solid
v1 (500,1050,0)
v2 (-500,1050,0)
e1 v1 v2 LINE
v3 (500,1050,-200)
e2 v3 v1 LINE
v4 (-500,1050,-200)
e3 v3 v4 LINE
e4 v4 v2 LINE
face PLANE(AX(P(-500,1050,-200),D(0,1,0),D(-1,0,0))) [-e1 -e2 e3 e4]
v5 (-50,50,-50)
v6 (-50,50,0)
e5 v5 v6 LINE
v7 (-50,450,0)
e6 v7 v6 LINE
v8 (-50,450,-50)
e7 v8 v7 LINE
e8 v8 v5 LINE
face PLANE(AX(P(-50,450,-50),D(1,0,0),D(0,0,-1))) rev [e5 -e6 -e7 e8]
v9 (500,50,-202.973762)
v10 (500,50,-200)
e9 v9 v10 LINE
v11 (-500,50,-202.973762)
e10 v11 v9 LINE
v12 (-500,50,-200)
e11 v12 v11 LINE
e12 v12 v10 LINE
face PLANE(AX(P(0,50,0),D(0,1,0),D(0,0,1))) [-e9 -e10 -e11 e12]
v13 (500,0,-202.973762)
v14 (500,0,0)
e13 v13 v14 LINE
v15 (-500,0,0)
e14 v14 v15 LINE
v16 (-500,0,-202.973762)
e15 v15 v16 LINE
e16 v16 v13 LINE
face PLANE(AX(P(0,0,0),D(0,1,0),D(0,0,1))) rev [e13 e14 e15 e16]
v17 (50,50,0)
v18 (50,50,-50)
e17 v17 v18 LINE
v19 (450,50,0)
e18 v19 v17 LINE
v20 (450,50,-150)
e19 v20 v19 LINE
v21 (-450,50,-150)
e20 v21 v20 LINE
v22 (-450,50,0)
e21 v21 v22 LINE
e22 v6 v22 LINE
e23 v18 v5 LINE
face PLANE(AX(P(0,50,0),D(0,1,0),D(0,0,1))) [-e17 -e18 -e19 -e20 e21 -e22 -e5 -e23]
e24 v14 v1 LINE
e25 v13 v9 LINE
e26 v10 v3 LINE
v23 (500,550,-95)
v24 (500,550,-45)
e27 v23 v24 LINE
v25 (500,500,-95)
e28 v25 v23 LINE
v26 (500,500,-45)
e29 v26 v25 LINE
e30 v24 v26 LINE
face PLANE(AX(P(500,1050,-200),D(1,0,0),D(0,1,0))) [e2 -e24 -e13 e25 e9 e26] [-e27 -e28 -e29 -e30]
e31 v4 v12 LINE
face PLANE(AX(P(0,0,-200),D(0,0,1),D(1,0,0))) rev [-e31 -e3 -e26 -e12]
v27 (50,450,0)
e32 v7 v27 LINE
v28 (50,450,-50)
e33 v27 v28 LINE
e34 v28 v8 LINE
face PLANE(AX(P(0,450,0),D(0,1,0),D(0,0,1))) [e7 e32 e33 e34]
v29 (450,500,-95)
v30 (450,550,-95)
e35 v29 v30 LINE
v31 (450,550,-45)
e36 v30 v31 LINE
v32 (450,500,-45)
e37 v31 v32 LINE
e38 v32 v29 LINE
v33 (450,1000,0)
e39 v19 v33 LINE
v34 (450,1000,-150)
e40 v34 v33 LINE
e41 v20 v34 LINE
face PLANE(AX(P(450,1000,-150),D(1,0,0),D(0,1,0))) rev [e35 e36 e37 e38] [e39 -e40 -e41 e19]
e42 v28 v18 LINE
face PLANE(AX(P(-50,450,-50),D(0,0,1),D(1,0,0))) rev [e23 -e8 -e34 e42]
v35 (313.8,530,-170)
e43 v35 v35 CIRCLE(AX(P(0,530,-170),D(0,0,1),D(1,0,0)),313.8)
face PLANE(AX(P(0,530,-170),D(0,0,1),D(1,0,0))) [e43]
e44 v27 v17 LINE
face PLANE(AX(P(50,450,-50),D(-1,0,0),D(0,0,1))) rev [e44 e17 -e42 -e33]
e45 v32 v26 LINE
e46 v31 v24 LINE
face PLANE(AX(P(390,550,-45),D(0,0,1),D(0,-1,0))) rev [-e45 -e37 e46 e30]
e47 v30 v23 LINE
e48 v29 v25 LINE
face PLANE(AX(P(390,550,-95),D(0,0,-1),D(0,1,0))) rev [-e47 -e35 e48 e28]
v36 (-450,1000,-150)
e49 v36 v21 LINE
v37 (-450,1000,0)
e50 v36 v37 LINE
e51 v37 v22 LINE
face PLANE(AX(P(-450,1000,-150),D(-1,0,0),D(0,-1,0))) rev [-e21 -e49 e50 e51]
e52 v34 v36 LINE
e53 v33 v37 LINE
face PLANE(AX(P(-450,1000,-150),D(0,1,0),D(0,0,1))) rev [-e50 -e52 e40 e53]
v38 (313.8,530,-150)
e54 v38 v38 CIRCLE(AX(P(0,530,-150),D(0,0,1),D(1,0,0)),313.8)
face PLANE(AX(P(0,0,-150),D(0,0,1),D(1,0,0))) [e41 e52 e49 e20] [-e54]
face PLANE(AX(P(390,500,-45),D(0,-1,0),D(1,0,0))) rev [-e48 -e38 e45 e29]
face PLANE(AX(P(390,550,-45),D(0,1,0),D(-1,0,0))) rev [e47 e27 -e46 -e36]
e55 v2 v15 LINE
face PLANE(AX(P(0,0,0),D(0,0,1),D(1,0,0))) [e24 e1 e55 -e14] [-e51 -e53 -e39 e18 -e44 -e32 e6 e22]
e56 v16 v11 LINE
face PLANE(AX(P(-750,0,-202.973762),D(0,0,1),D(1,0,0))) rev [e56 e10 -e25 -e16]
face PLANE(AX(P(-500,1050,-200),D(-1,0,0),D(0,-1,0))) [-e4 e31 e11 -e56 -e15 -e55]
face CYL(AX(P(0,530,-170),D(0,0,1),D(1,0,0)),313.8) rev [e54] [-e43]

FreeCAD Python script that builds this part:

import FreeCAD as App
import Part
import Sketcher
Q = App.Units.Quantity

doc = App.newDocument("Part")
params = doc.addObject("Spreadsheet::Sheet", "Params")
for row, (alias, value) in enumerate([
    ("sketch1_width", "1500 mm"),
    ("sketch1_height", "1000 mm"),
    ("pad1_length", "50 mm"),
    ("sketch2_width", "1000 mm"),
    ("pad2_length", "200 mm"),
    ("sketch3_width", "900 mm"),
    ("sketch3_height", "950 mm"),
    ("pocket1_length", "150 mm"),
    ("sketch4_width", "100 mm"),
    ("sketch4_height", "50 mm"),
    ("pad3_length", "400 mm"),
    ("sketch5_width", "50 mm"),
    ("pocket2_length", "110 mm"),
    ("sketch6_width", "1500 mm"),
    ("sketch6_height", "500 mm"),
    ("sketch7_width", "1500 mm"),
    ("sketch8_width", "250 mm"),
    ("sketch9_diameter", "627.6 mm"),
    ("pocket6_length", "20 mm"),
], start=1):
    params.set(f"A{row}", alias)
    params.set(f"B{row}", "=" + value)
    params.setAlias(f"B{row}", alias)

body = doc.addObject("PartDesign::Body", "Body")

# Sketch on XZ plane
sketch1 = body.newObject("Sketcher::SketchObject", "Sketch")
sketch1.AttachmentSupport = (doc.getObject("XZ_Plane"), [""])
sketch1.MapMode = "FlatFace"
sketch1.addGeometry(Part.LineSegment(App.Vector(-750, -500, 0), App.Vector(-750, 500, 0)), False)
sketch1.addGeometry(Part.LineSegment(App.Vector(-750, 500, 0), App.Vector(750, 500, 0)), False)
sketch1.addGeometry(Part.LineSegment(App.Vector(750, 500, 0), App.Vector(750, -500, 0)), False)
sketch1.addGeometry(Part.LineSegment(App.Vector(750, -500, 0), App.Vector(-750, -500, 0)), False)
sketch1.addConstraint(Sketcher.Constraint("Coincident", 0, 2, 1, 1))
sketch1.addConstraint(Sketcher.Constraint("Coincident", 1, 2, 2, 1))
sketch1.addConstraint(Sketcher.Constraint("Coincident", 2, 2, 3, 1))
sketch1.addConstraint(Sketcher.Constraint("Coincident", 3, 2, 0, 1))
sketch1.addConstraint(Sketcher.Constraint("Vertical", 0))
sketch1.addConstraint(Sketcher.Constraint("Horizontal", 1))
sketch1.addConstraint(Sketcher.Constraint("Vertical", 2))
sketch1.addConstraint(Sketcher.Constraint("Horizontal", 3))
sketch1.addConstraint(Sketcher.Constraint("Symmetric", 0, 2, 2, 2, -1, 1))
sketch1.addConstraint(Sketcher.Constraint("DistanceX", 1, 1, 1, 2, Q("1500 mm")))
sketch1.addConstraint(Sketcher.Constraint("DistanceY", 0, 1, 0, 2, Q("1000 mm")))
sketch1.setExpression("Constraints[9]", "Params.sketch1_width")
sketch1.setExpression("Constraints[10]", "Params.sketch1_height")
pad1 = body.newObject("PartDesign::Pad", "Pad")
pad1.Profile = sketch1
pad1.setExpression("Length", "Params.pad1_length")
pad1.Reversed = True

# Sketch on XY plane
sketch2 = body.newObject("Sketcher::SketchObject", "Sketch001")
sketch2.AttachmentSupport = (doc.getObject("XY_Plane"), [""])
sketch2.MapMode = "FlatFace"
sketch2.addGeometry(Part.LineSegment(App.Vector(-500, 1050, 0), App.Vector(-500, 50, 0)), False)
sketch2.addGeometry(Part.LineSegment(App.Vector(-500, 50, 0), App.Vector(500, 50, 0)), False)
sketch2.addGeometry(Part.LineSegment(App.Vector(500, 50, 0), App.Vector(500, 1050, 0)), False)
sketch2.addGeometry(Part.LineSegment(App.Vector(500, 1050, 0), App.Vector(-500, 1050, 0)), False)
sketch2.addConstraint(Sketcher.Constraint("Coincident", 0, 2, 1, 1))
sketch2.addConstraint(Sketcher.Constraint("Coincident", 1, 2, 2, 1))
sketch2.addConstraint(Sketcher.Constraint("Coincident", 2, 2, 3, 1))
sketch2.addConstraint(Sketcher.Constraint("Coincident", 3, 2, 0, 1))
sketch2.addConstraint(Sketcher.Constraint("Vertical", 0))
sketch2.addConstraint(Sketcher.Constraint("Horizontal", 1))
sketch2.addConstraint(Sketcher.Constraint("Vertical", 2))
sketch2.addConstraint(Sketcher.Constraint("Horizontal", 3))
sketch2.addConstraint(Sketcher.Constraint("Equal", 3, 0))
sketch2.addConstraint(Sketcher.Constraint("DistanceX", 1, 1, 1, 2, Q("1000 mm")))
sketch2.addConstraint(Sketcher.Constraint("DistanceX", 0, 2, -1, 1, Q("500 mm")))
sketch2.addConstraint(Sketcher.Constraint("DistanceY", -1, 1, 0, 2, Q("50 mm")))
sketch2.setExpression("Constraints[9]", "Params.sketch2_width")
pad2 = body.newObject("PartDesign::Pad", "Pad001")
pad2.Profile = sketch2
pad2.setExpression("Length", "Params.pad2_length")
pad2.Reversed = True

# Sketch on XY plane
sketch3 = body.newObject("Sketcher::SketchObject", "Sketch002")
sketch3.AttachmentSupport = (doc.getObject("XY_Plane"), [""])
sketch3.MapMode = "FlatFace"
sketch3.addGeometry(Part.LineSegment(App.Vector(-450, 1000, 0), App.Vector(-450, 50, 0)), False)
sketch3.addGeometry(Part.LineSegment(App.Vector(-450, 50, 0), App.Vector(450, 50, 0)), False)
sketch3.addGeometry(Part.LineSegment(App.Vector(450, 50, 0), App.Vector(450, 1000, 0)), False)
sketch3.addGeometry(Part.LineSegment(App.Vector(450, 1000, 0), App.Vector(-450, 1000, 0)), False)
sketch3.addConstraint(Sketcher.Constraint("Coincident", 0, 2, 1, 1))
sketch3.addConstraint(Sketcher.Constraint("Coincident", 1, 2, 2, 1))
sketch3.addConstraint(Sketcher.Constraint("Coincident", 2, 2, 3, 1))
sketch3.addConstraint(Sketcher.Constraint("Coincident", 3, 2, 0, 1))
sketch3.addConstraint(Sketcher.Constraint("Vertical", 0))
sketch3.addConstraint(Sketcher.Constraint("Horizontal", 1))
sketch3.addConstraint(Sketcher.Constraint("Vertical", 2))
sketch3.addConstraint(Sketcher.Constraint("Horizontal", 3))
sketch3.addConstraint(Sketcher.Constraint("DistanceX", 1, 1, 1, 2, Q("900 mm")))
sketch3.addConstraint(Sketcher.Constraint("DistanceY", 0, 2, 0, 1, Q("950 mm")))
sketch3.addConstraint(Sketcher.Constraint("DistanceX", 0, 2, -1, 1, Q("450 mm")))
sketch3.addConstraint(Sketcher.Constraint("DistanceY", -1, 1, 0, 2, Q("50 mm")))
sketch3.setExpression("Constraints[8]", "Params.sketch3_width")
sketch3.setExpression("Constraints[9]", "Params.sketch3_height")
pocket1 = body.newObject("PartDesign::Pocket", "Pocket")
pocket1.Profile = sketch3
pocket1.setExpression("Length", "Params.pocket1_length")

# Sketch on XZ plane
sketch4 = body.newObject("Sketcher::SketchObject", "Sketch003")
sketch4.AttachmentSupport = (doc.getObject("XZ_Plane"), [""])
sketch4.MapMode = "FlatFace"
sketch4.AttachmentOffset = App.Placement(App.Vector(0, 0, -50), App.Rotation())
sketch4.addGeometry(Part.LineSegment(App.Vector(-50, -50, 0), App.Vector(-50, 0, 0)), False)
sketch4.addGeometry(Part.LineSegment(App.Vector(-50, 0, 0), App.Vector(50, 0, 0)), False)
sketch4.addGeometry(Part.LineSegment(App.Vector(50, 0, 0), App.Vector(50, -50, 0)), False)
sketch4.addGeometry(Part.LineSegment(App.Vector(50, -50, 0), App.Vector(-50, -50, 0)), False)
sketch4.addConstraint(Sketcher.Constraint("Coincident", 0, 2, 1, 1))
sketch4.addConstraint(Sketcher.Constraint("Coincident", 1, 2, 2, 1))
sketch4.addConstraint(Sketcher.Constraint("Coincident", 2, 2, 3, 1))
sketch4.addConstraint(Sketcher.Constraint("Coincident", 3, 2, 0, 1))
sketch4.addConstraint(Sketcher.Constraint("Vertical", 0))
sketch4.addConstraint(Sketcher.Constraint("Horizontal", 1))
sketch4.addConstraint(Sketcher.Constraint("Vertical", 2))
sketch4.addConstraint(Sketcher.Constraint("Horizontal", 3))
sketch4.addConstraint(Sketcher.Constraint("Symmetric", 0, 2, 1, 2, -1, 1))
sketch4.addConstraint(Sketcher.Constraint("DistanceX", 1, 1, 1, 2, Q("100 mm")))
sketch4.addConstraint(Sketcher.Constraint("DistanceY", 0, 1, 0, 2, Q("50 mm")))
sketch4.setExpression("Constraints[9]", "Params.sketch4_width")
sketch4.setExpression("Constraints[10]", "Params.sketch4_height")
pad3 = body.newObject("PartDesign::Pad", "Pad002")
pad3.Profile = sketch4
pad3.setExpression("Length", "Params.pad3_length")
pad3.Reversed = True

# Sketch on YZ plane
sketch5 = body.newObject("Sketcher::SketchObject", "Sketch004")
sketch5.AttachmentSupport = (doc.getObject("YZ_Plane"), [""])
sketch5.MapMode = "FlatFace"
sketch5.AttachmentOffset = App.Placement(App.Vector(0, 0, 500), App.Rotation())
sketch5.addGeometry(Part.LineSegment(App.Vector(550, -45, 0), App.Vector(500, -45, 0)), False)
sketch5.addGeometry(Part.LineSegment(App.Vector(500, -45, 0), App.Vector(500, -95, 0)), False)
sketch5.addGeometry(Part.LineSegment(App.Vector(500, -95, 0), App.Vector(550, -95, 0)), False)
sketch5.addGeometry(Part.LineSegment(App.Vector(550, -95, 0), App.Vector(550, -45, 0)), False)
sketch5.addConstraint(Sketcher.Constraint("Coincident", 0, 2, 1, 1))
sketch5.addConstraint(Sketcher.Constraint("Coincident", 1, 2, 2, 1))
sketch5.addConstraint(Sketcher.Constraint("Coincident", 2, 2, 3, 1))
sketch5.addConstraint(Sketcher.Constraint("Coincident", 3, 2, 0, 1))
sketch5.addConstraint(Sketcher.Constraint("Horizontal", 0))
sketch5.addConstraint(Sketcher.Constraint("Vertical", 1))
sketch5.addConstraint(Sketcher.Constraint("Horizontal", 2))
sketch5.addConstraint(Sketcher.Constraint("Vertical", 3))
sketch5.addConstraint(Sketcher.Constraint("Equal", 2, 1))
sketch5.addConstraint(Sketcher.Constraint("DistanceX", 0, 2, 0, 1, Q("50 mm")))
sketch5.addConstraint(Sketcher.Constraint("DistanceX", -1, 1, 0, 2, Q("500 mm")))
sketch5.addConstraint(Sketcher.Constraint("DistanceY", 0, 2, -1, 1, Q("45 mm")))
sketch5.setExpression("Constraints[9]", "Params.sketch5_width")
pocket2 = body.newObject("PartDesign::Pocket", "Pocket001")
pocket2.Profile = sketch5
pocket2.setExpression("Length", "Params.pocket2_length")

# Sketch on XZ plane
sketch6 = body.newObject("Sketcher::SketchObject", "Sketch005")
sketch6.AttachmentSupport = (doc.getObject("XZ_Plane"), [""])
sketch6.MapMode = "FlatFace"
sketch6.AttachmentOffset = App.Placement(App.Vector(0, 0, -50), App.Rotation())
sketch6.addGeometry(Part.LineSegment(App.Vector(-750, 0, 0), App.Vector(-750, 500, 0)), False)
sketch6.addGeometry(Part.LineSegment(App.Vector(-750, 500, 0), App.Vector(750, 500, 0)), False)
sketch6.addGeometry(Part.LineSegment(App.Vector(750, 500, 0), App.Vector(750, 0, 0)), False)
sketch6.addGeometry(Part.LineSegment(App.Vector(750, 0, 0), App.Vector(-750, 0, 0)), False)
sketch6.addConstraint(Sketcher.Constraint("Coincident", 0, 2, 1, 1))
sketch6.addConstraint(Sketcher.Constraint("Coincident", 1, 2, 2, 1))
sketch6.addConstraint(Sketcher.Constraint("Coincident", 2, 2, 3, 1))
sketch6.addConstraint(Sketcher.Constraint("Coincident", 3, 2, 0, 1))
sketch6.addConstraint(Sketcher.Constraint("Vertical", 0))
sketch6.addConstraint(Sketcher.Constraint("Horizontal", 1))
sketch6.addConstraint(Sketcher.Constraint("Vertical", 2))
sketch6.addConstraint(Sketcher.Constraint("Horizontal", 3))
sketch6.addConstraint(Sketcher.Constraint("Symmetric", 2, 2, 3, 2, -1, 1))
sketch6.addConstraint(Sketcher.Constraint("DistanceX", 1, 1, 1, 2, Q("1500 mm")))
sketch6.addConstraint(Sketcher.Constraint("DistanceY", 0, 1, 0, 2, Q("500 mm")))
sketch6.setExpression("Constraints[9]", "Params.sketch6_width")
sketch6.setExpression("Constraints[10]", "Params.sketch6_height")
pocket3 = body.newObject("PartDesign::Pocket", "Pocket002")
pocket3.Profile = sketch6
pocket3.Type = "ThroughAll"
pocket3.Reversed = True

# Sketch on XZ plane
sketch7 = body.newObject("Sketcher::SketchObject", "Sketch006")
sketch7.AttachmentSupport = (doc.getObject("XZ_Plane"), [""])
sketch7.MapMode = "FlatFace"
sketch7.AttachmentOffset = App.Placement(App.Vector(0, 0, -50), App.Rotation())
sketch7.addGeometry(Part.LineSegment(App.Vector(-750, -500, 0), App.Vector(-750, -203, 0)), False)
sketch7.addGeometry(Part.LineSegment(App.Vector(-750, -203, 0), App.Vector(750, -203, 0)), False)
sketch7.addGeometry(Part.LineSegment(App.Vector(750, -203, 0), App.Vector(750, -500, 0)), False)
sketch7.addGeometry(Part.LineSegment(App.Vector(750, -500, 0), App.Vector(-750, -500, 0)), False)
sketch7.addConstraint(Sketcher.Constraint("Coincident", 0, 2, 1, 1))
sketch7.addConstraint(Sketcher.Constraint("Coincident", 1, 2, 2, 1))
sketch7.addConstraint(Sketcher.Constraint("Coincident", 2, 2, 3, 1))
sketch7.addConstraint(Sketcher.Constraint("Coincident", 3, 2, 0, 1))
sketch7.addConstraint(Sketcher.Constraint("Vertical", 0))
sketch7.addConstraint(Sketcher.Constraint("Horizontal", 1))
sketch7.addConstraint(Sketcher.Constraint("Vertical", 2))
sketch7.addConstraint(Sketcher.Constraint("Horizontal", 3))
sketch7.addConstraint(Sketcher.Constraint("DistanceX", 1, 1, 1, 2, Q("1500 mm")))
sketch7.addConstraint(Sketcher.Constraint("DistanceX", 0, 2, -1, 1, Q("750 mm")))
sketch7.addConstraint(Sketcher.Constraint("DistanceY", 2, 2, -1, 1, Q("500 mm")))
sketch7.addConstraint(Sketcher.Constraint("DistanceY", 0, 1, 0, 2, Q("297.026238 mm")))
sketch7.setExpression("Constraints[8]", "Params.sketch7_width")
pocket4 = body.newObject("PartDesign::Pocket", "Pocket003")
pocket4.Profile = sketch7
pocket4.Type = "ThroughAll"
pocket4.Reversed = True

# Sketch on XZ plane
sketch8 = body.newObject("Sketcher::SketchObject", "Sketch007")
sketch8.AttachmentSupport = (doc.getObject("XZ_Plane"), [""])
sketch8.MapMode = "FlatFace"
sketch8.AttachmentOffset = App.Placement(App.Vector(0, 0, -50), App.Rotation())
sketch8.addGeometry(Part.LineSegment(App.Vector(-750, -203, 0), App.Vector(-750, 0, 0)), False)
sketch8.addGeometry(Part.LineSegment(App.Vector(-750, 0, 0), App.Vector(-500, 0, 0)), False)
sketch8.addGeometry(Part.LineSegment(App.Vector(-500, 0, 0), App.Vector(-500, -203, 0)), False)
sketch8.addGeometry(Part.LineSegment(App.Vector(-500, -203, 0), App.Vector(-750, -203, 0)), False)
sketch8.addGeometry(Part.LineSegment(App.Vector(500, -203, 0), App.Vector(500, 0, 0)), False)
sketch8.addGeometry(Part.LineSegment(App.Vector(500, 0, 0), App.Vector(750, 0, 0)), False)
sketch8.addGeometry(Part.LineSegment(App.Vector(750, 0, 0), App.Vector(750, -203, 0)), False)
sketch8.addGeometry(Part.LineSegment(App.Vector(750, -203, 0), App.Vector(500, -203, 0)), False)
sketch8.addConstraint(Sketcher.Constraint("Coincident", 0, 2, 1, 1))
sketch8.addConstraint(Sketcher.Constraint("Coincident", 1, 2, 2, 1))
sketch8.addConstraint(Sketcher.Constraint("Coincident", 2, 2, 3, 1))
sketch8.addConstraint(Sketcher.Constraint("Coincident", 3, 2, 0, 1))
sketch8.addConstraint(Sketcher.Constraint("Coincident", 4, 2, 5, 1))
sketch8.addConstraint(Sketcher.Constraint("Coincident", 5, 2, 6, 1))
sketch8.addConstraint(Sketcher.Constraint("Coincident", 6, 2, 7, 1))
sketch8.addConstraint(Sketcher.Constraint("Coincident", 7, 2, 4, 1))
sketch8.addConstraint(Sketcher.Constraint("Vertical", 0))
sketch8.addConstraint(Sketcher.Constraint("Horizontal", 1))
sketch8.addConstraint(Sketcher.Constraint("Vertical", 2))
sketch8.addConstraint(Sketcher.Constraint("Horizontal", 3))
sketch8.addConstraint(Sketcher.Constraint("Vertical", 4))
sketch8.addConstraint(Sketcher.Constraint("Horizontal", 5))
sketch8.addConstraint(Sketcher.Constraint("Vertical", 6))
sketch8.addConstraint(Sketcher.Constraint("Horizontal", 7))
sketch8.addConstraint(Sketcher.Constraint("Symmetric", 1, 2, 4, 2, -1, 1))
sketch8.addConstraint(Sketcher.Constraint("Symmetric", 0, 2, 5, 2, -2))
sketch8.addConstraint(Sketcher.Constraint("Horizontal", 3, 2, 6, 2))
sketch8.addConstraint(Sketcher.Constraint("DistanceX", 1, 1, 1, 2, Q("250 mm")))
sketch8.addConstraint(Sketcher.Constraint("DistanceX", 0, 2, -1, 1, Q("750 mm")))
sketch8.addConstraint(Sketcher.Constraint("DistanceY", 0, 1, 0, 2, Q("202.973762 mm")))
sketch8.setExpression("Constraints[19]", "Params.sketch8_width")
pocket5 = body.newObject("PartDesign::Pocket", "Pocket004")
pocket5.Profile = sketch8
pocket5.Type = "ThroughAll"
pocket5.Reversed = True

# Sketch on XY plane
sketch9 = body.newObject("Sketcher::SketchObject", "Sketch008")
sketch9.AttachmentSupport = (doc.getObject("XY_Plane"), [""])
sketch9.MapMode = "FlatFace"
sketch9.AttachmentOffset = App.Placement(App.Vector(0, 0, -150), App.Rotation())
sketch9.addGeometry(Part.Circle(App.Vector(0, 530, 0), App.Vector(0, 0, 1), 314), False)
sketch9.addConstraint(Sketcher.Constraint("PointOnObject", 0, 3, -2))
sketch9.addConstraint(Sketcher.Constraint("Diameter", 0, Q("627.6 mm")))
sketch9.addConstraint(Sketcher.Constraint("DistanceY", -1, 1, 0, 3, Q("530 mm")))
sketch9.setExpression("Constraints[1]", "Params.sketch9_diameter")
pocket6 = body.newObject("PartDesign::Pocket", "Pocket005")
pocket6.Profile = sketch9
pocket6.setExpression("Length", "Params.pocket6_length")

doc.recompute()
